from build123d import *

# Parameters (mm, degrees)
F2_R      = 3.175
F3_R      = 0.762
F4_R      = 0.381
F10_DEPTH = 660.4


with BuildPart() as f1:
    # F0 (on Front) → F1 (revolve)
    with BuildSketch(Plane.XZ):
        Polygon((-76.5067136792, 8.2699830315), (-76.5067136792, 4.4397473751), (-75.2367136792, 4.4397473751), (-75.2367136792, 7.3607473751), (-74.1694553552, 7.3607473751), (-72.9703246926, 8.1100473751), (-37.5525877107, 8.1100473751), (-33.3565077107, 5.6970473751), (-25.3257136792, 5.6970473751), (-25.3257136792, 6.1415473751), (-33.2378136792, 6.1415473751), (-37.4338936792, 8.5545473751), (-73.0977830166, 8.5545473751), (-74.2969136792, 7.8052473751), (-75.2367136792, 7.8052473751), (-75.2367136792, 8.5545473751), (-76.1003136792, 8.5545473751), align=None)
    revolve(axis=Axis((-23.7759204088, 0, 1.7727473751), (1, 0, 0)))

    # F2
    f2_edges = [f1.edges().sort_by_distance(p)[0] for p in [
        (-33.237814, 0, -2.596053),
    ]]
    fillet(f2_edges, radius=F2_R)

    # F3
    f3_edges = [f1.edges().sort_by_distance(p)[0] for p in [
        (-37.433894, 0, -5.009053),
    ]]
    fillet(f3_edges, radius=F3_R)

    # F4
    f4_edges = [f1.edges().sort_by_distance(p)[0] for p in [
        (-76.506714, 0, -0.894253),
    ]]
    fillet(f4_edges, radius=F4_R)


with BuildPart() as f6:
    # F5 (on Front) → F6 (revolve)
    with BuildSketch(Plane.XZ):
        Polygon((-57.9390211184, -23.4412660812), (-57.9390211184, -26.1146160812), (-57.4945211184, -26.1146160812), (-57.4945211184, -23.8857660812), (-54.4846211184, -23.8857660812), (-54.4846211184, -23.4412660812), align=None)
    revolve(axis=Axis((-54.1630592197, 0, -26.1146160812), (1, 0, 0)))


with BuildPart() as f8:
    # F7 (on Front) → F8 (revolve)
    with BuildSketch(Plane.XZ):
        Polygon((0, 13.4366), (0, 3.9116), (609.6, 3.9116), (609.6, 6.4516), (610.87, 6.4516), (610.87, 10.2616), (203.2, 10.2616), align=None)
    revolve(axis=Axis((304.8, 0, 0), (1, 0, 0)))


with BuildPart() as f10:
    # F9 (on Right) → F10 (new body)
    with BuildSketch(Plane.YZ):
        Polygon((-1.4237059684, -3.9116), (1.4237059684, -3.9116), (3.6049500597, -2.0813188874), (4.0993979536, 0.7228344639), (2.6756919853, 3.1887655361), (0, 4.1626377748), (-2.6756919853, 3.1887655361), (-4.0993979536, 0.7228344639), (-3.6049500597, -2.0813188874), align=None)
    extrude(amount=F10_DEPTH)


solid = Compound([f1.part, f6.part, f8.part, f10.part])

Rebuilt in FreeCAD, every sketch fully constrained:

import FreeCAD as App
import Part
import Sketcher

V = App.Vector
Q = App.Units.Quantity


def edges_at(feature, points):
    """Names of the edges that pass closest to the given points."""
    edges = feature.Shape.Edges
    near = lambda p: min(range(len(edges)), key=lambda i: edges[i].distToShape(Part.Vertex(*p))[0])
    return sorted({f"Edge{near(p) + 1}" for p in points})

doc = App.newDocument("Part")
body = doc.addObject("PartDesign::Body", "Body")

# Sketch on XZ plane
sketch1 = body.newObject("Sketcher::SketchObject", "Sketch")
sketch1.AttachmentSupport = (doc.getObject("XZ_Plane"), [""])
sketch1.MapMode = "FlatFace"
sketch1.addGeometry([
    Part.LineSegment(V(-76.51, 8.27, 0), V(-76.51, 4.44, 0)),  # 0
    Part.LineSegment(V(-76.51, 4.44, 0), V(-75.24, 4.44, 0)),  # 1
    Part.LineSegment(V(-75.24, 4.44, 0), V(-75.24, 7.36, 0)),  # 2
    Part.LineSegment(V(-75.24, 7.36, 0), V(-74.17, 7.36, 0)),  # 3
    Part.LineSegment(V(-74.17, 7.36, 0), V(-72.97, 8.11, 0)),  # 4
    Part.LineSegment(V(-72.97, 8.11, 0), V(-37.55, 8.11, 0)),  # 5
    Part.LineSegment(V(-37.55, 8.11, 0), V(-33.36, 5.7, 0)),  # 6
    Part.LineSegment(V(-33.36, 5.7, 0), V(-25.33, 5.7, 0)),  # 7
    Part.LineSegment(V(-25.33, 5.7, 0), V(-25.33, 6.14, 0)),  # 8
    Part.LineSegment(V(-25.33, 6.14, 0), V(-33.24, 6.14, 0)),  # 9
    Part.LineSegment(V(-33.24, 6.14, 0), V(-37.43, 8.55, 0)),  # 10
    Part.LineSegment(V(-37.43, 8.55, 0), V(-73.1, 8.55, 0)),  # 11
    Part.LineSegment(V(-73.1, 8.55, 0), V(-74.3, 7.81, 0)),  # 12
    Part.LineSegment(V(-74.3, 7.81, 0), V(-75.24, 7.81, 0)),  # 13
    Part.LineSegment(V(-75.24, 7.81, 0), V(-75.24, 8.55, 0)),  # 14
    Part.LineSegment(V(-75.24, 8.55, 0), V(-76.1, 8.55, 0)),  # 15
    Part.LineSegment(V(-76.1, 8.55, 0), V(-76.51, 8.27, 0)),  # 16
], False)
sketch1.addGeometry(Part.LineSegment(V(-76.51, 1.77, 0), V(-25.33, 1.77, 0)), True)  # axis
sketch1.addConstraint([
    Sketcher.Constraint("Coincident", 0, 2, 1, 1),
    Sketcher.Constraint("Coincident", 1, 2, 2, 1),
    Sketcher.Constraint("Coincident", 2, 2, 3, 1),
    Sketcher.Constraint("Coincident", 3, 2, 4, 1),
    Sketcher.Constraint("Coincident", 4, 2, 5, 1),
    Sketcher.Constraint("Coincident", 5, 2, 6, 1),
    Sketcher.Constraint("Coincident", 6, 2, 7, 1),
    Sketcher.Constraint("Coincident", 7, 2, 8, 1),
    Sketcher.Constraint("Coincident", 8, 2, 9, 1),
    Sketcher.Constraint("Coincident", 9, 2, 10, 1),
    Sketcher.Constraint("Coincident", 10, 2, 11, 1),
    Sketcher.Constraint("Coincident", 11, 2, 12, 1),
    Sketcher.Constraint("Coincident", 12, 2, 13, 1),
    Sketcher.Constraint("Coincident", 13, 2, 14, 1),
    Sketcher.Constraint("Coincident", 14, 2, 15, 1),
    Sketcher.Constraint("Coincident", 15, 2, 16, 1),
    Sketcher.Constraint("Coincident", 16, 2, 0, 1),
    Sketcher.Constraint("Vertical", 0),
    Sketcher.Constraint("Horizontal", 1),
    Sketcher.Constraint("Vertical", 2),
    Sketcher.Constraint("Horizontal", 3),
    Sketcher.Constraint("Horizontal", 5),
    Sketcher.Constraint("Horizontal", 7),
    Sketcher.Constraint("Vertical", 8),
    Sketcher.Constraint("Horizontal", 9),
    Sketcher.Constraint("Horizontal", 11),
    Sketcher.Constraint("Horizontal", 13),
    Sketcher.Constraint("Vertical", 14),
    Sketcher.Constraint("Horizontal", 15),
    Sketcher.Constraint("Horizontal", 17),
    Sketcher.Constraint("Parallel", 6, 10),
    Sketcher.Constraint("Parallel", 4, 12),
    Sketcher.Constraint("Horizontal", 11, 2, 14, 2),
    Sketcher.Constraint("Vertical", 2, 2, 13, 2),
    Sketcher.Constraint("Vertical", 16, 2, 17, 1),
    Sketcher.Constraint("Vertical", 8, 2, 17, 2),
    Sketcher.Constraint("Equal", 6, 10),
    Sketcher.Constraint("Equal", 4, 12),
    Sketcher.Constraint("Angle", 4, Q("32 deg")),
    Sketcher.Constraint("Angle", 16, Q("-145 deg")),
    Sketcher.Constraint("DistanceX", 1, 1, 1, 2, Q("0.05 in")),
    Sketcher.Constraint("DistanceX", 13, 2, 13, 1, Q("0.037 in")),
    Sketcher.Constraint("DistanceX", 15, 2, 15, 1, Q("0.034 in")),
    Sketcher.Constraint("DistanceX", 17, 1, 17, 2, Q("2.015 in")),
    Sketcher.Constraint("DistanceY", 2, 1, 2, 2, Q("0.115 in")),
    Sketcher.Constraint("DistanceY", 17, 1, 2, 2, Q("0.22 in")),
    Sketcher.Constraint("DistanceX", 9, 2, 9, 1, Q("0.3115 in")),
    Sketcher.Constraint("DistanceY", 8, 1, 8, 2, Q("0.0175 in")),
    Sketcher.Constraint("DistanceY", 14, 1, 14, 2, Q("0.0295 in")),
    Sketcher.Constraint("DistanceY", 6, 2, 5, 2, Q("0.095 in")),
    Sketcher.Constraint("DistanceX", 5, 2, 6, 2, Q("0.1652 in")),
    Sketcher.Constraint("DistanceX", 3, 1, 3, 2, Q("1.067258 mm")),
    Sketcher.Constraint("DistanceX", 5, 1, 5, 2, Q("35.417737 mm")),
    Sketcher.Constraint("DistanceX", 0, 2, -1, 1, Q("76.506714 mm")),
    Sketcher.Constraint("DistanceY", -1, 1, 0, 2, Q("4.439747 mm")),
])
revolution = body.newObject("PartDesign::Revolution", "Revolution")
revolution.Profile = sketch1
revolution.ReferenceAxis = (sketch1, ["Axis0"])
revolution.Angle = 360
doc.recompute()

fillet = body.newObject("PartDesign::Fillet", "Fillet")
fillet.Base = (revolution, edges_at(revolution, [(-33.238, 0, -2.596)]))
fillet.Radius = Q("0.125 in")
doc.recompute()

fillet2 = body.newObject("PartDesign::Fillet", "Fillet001")
fillet2.Base = (fillet, edges_at(fillet, [(-37.434, 0, -5.009)]))
fillet2.Radius = Q("0.03 in")
doc.recompute()

fillet3 = body.newObject("PartDesign::Fillet", "Fillet002")
fillet3.Base = (fillet2, edges_at(fillet2, [(-76.507, 0, -0.894)]))
fillet3.Radius = Q("0.015 in")
body2 = doc.addObject("PartDesign::Body", "Body001")

# Sketch on XZ plane
sketch2 = body2.newObject("Sketcher::SketchObject", "Sketch001")
sketch2.AttachmentSupport = (doc.getObject("XZ_Plane001"), [""])
sketch2.MapMode = "FlatFace"
sketch2.addGeometry([
    Part.LineSegment(V(-57.94, -23.44, 0), V(-57.94, -26.11, 0)),  # 0
    Part.LineSegment(V(-57.94, -26.11, 0), V(-57.49, -26.11, 0)),  # 1
    Part.LineSegment(V(-57.49, -26.11, 0), V(-57.49, -23.89, 0)),  # 2
    Part.LineSegment(V(-57.49, -23.89, 0), V(-54.48, -23.89, 0)),  # 3
    Part.LineSegment(V(-54.48, -23.89, 0), V(-54.48, -23.44, 0)),  # 4
    Part.LineSegment(V(-54.48, -23.44, 0), V(-57.94, -23.44, 0)),  # 5
], False)
sketch2.addGeometry(Part.LineSegment(V(-57.94, -26.11, 0), V(-54.48, -26.11, 0)), True)  # axis
sketch2.addConstraint([
    Sketcher.Constraint("Coincident", 0, 2, 1, 1),
    Sketcher.Constraint("Coincident", 1, 2, 2, 1),
    Sketcher.Constraint("Coincident", 2, 2, 3, 1),
    Sketcher.Constraint("Coincident", 3, 2, 4, 1),
    Sketcher.Constraint("Coincident", 4, 2, 5, 1),
    Sketcher.Constraint("Coincident", 5, 2, 0, 1),
    Sketcher.Constraint("Vertical", 0),
    Sketcher.Constraint("Horizontal", 1),
    Sketcher.Constraint("Vertical", 2),
    Sketcher.Constraint("Horizontal", 3),
    Sketcher.Constraint("Vertical", 4),
    Sketcher.Constraint("Horizontal", 5),
    Sketcher.Constraint("Horizontal", 6),
    Sketcher.Constraint("Coincident", 6, 1, 0, 2),
    Sketcher.Constraint("Vertical", 4, 2, 6, 2),
    Sketcher.Constraint("Equal", 1, 4),
    Sketcher.Constraint("DistanceX", 5, 2, 5, 1, Q("0.136 in")),
    Sketcher.Constraint("DistanceX", 1, 1, 1, 2, Q("0.0175 in")),
    Sketcher.Constraint("DistanceY", 0, 2, 0, 1, Q("2.67335 mm")),
    Sketcher.Constraint("DistanceX", 0, 2, -1, 1, Q("57.939021 mm")),
    Sketcher.Constraint("DistanceY", 0, 2, -1, 1, Q("26.114616 mm")),
])
revolution2 = body2.newObject("PartDesign::Revolution", "Revolution001")
revolution2.Profile = sketch2
revolution2.ReferenceAxis = (sketch2, ["Axis0"])
revolution2.Angle = 360
body3 = doc.addObject("PartDesign::Body", "Body002")

# Sketch on XZ plane
sketch3 = body3.newObject("Sketcher::SketchObject", "Sketch002")
sketch3.AttachmentSupport = (doc.getObject("XZ_Plane002"), [""])
sketch3.MapMode = "FlatFace"
sketch3.addGeometry([
    Part.LineSegment(V(0, 13.4, 0), V(0, 3.9, 0)),  # 0
    Part.LineSegment(V(0, 3.9, 0), V(609.6, 3.9, 0)),  # 1
    Part.LineSegment(V(609.6, 3.9, 0), V(609.6, 6.5, 0)),  # 2
    Part.LineSegment(V(609.6, 6.5, 0), V(610.9, 6.5, 0)),  # 3
    Part.LineSegment(V(610.9, 6.5, 0), V(610.9, 10.3, 0)),  # 4
    Part.LineSegment(V(610.9, 10.3, 0), V(203.2, 10.3, 0)),  # 5
    Part.LineSegment(V(203.2, 10.3, 0), V(0, 13.4, 0)),  # 6
], False)
sketch3.addConstraint([
    Sketcher.Constraint("Coincident", 0, 2, 1, 1),
    Sketcher.Constraint("Coincident", 1, 2, 2, 1),
    Sketcher.Constraint("Coincident", 2, 2, 3, 1),
    Sketcher.Constraint("Coincident", 3, 2, 4, 1),
    Sketcher.Constraint("Coincident", 4, 2, 5, 1),
    Sketcher.Constraint("Coincident", 5, 2, 6, 1),
    Sketcher.Constraint("Coincident", 6, 2, 0, 1),
    Sketcher.Constraint("Vertical", 0),
    Sketcher.Constraint("Horizontal", 1),
    Sketcher.Constraint("Vertical", 2),
    Sketcher.Constraint("Horizontal", 3),
    Sketcher.Constraint("Vertical", 4),
    Sketcher.Constraint("Horizontal", 5),
    Sketcher.Constraint("PointOnObject", 0, 2, -2),
    Sketcher.Constraint("DistanceX", 1, 1, 1, 2, Q("24 in")),
    Sketcher.Constraint("DistanceY", 2, 1, 2, 2, Q("0.1 in")),
    Sketcher.Constraint("DistanceX", -1, 1, 5, 2, Q("8 in")),
    Sketcher.Constraint("DistanceX", 3, 1, 3, 2, Q("0.05 in")),
    Sketcher.Constraint("DistanceY", 4, 1, 4, 2, Q("0.15 in")),
    Sketcher.Constraint("DistanceY", 0, 2, 0, 1, Q("0.375 in")),
    Sketcher.Constraint("DistanceY", -1, 1, 0, 2, Q("0.154 in")),
])
revolution3 = body3.newObject("PartDesign::Revolution", "Revolution002")
revolution3.Profile = sketch3
revolution3.ReferenceAxis = (sketch3, ["H_Axis"])
revolution3.Angle = 360
body4 = doc.addObject("PartDesign::Body", "Body003")

# Sketch on YZ plane
sketch4 = body4.newObject("Sketcher::SketchObject", "Sketch003")
sketch4.AttachmentSupport = (doc.getObject("YZ_Plane003"), [""])
sketch4.MapMode = "FlatFace"
sketch4.addGeometry([
    Part.LineSegment(V(-1.4, -3.9, 0), V(1.4, -3.9, 0)),  # 0
    Part.LineSegment(V(1.4, -3.9, 0), V(3.6, -2.1, 0)),  # 1
    Part.LineSegment(V(3.6, -2.1, 0), V(4.1, 0.7, 0)),  # 2
    Part.LineSegment(V(4.1, 0.7, 0), V(2.7, 3.2, 0)),  # 3
    Part.LineSegment(V(2.7, 3.2, 0), V(0, 4.2, 0)),  # 4
    Part.LineSegment(V(0, 4.2, 0), V(-2.7, 3.2, 0)),  # 5
    Part.LineSegment(V(-2.7, 3.2, 0), V(-4.1, 0.7, 0)),  # 6
    Part.LineSegment(V(-4.1, 0.7, 0), V(-3.6, -2.1, 0)),  # 7
    Part.LineSegment(V(-3.6, -2.1, 0), V(-1.4, -3.9, 0)),  # 8
], False)
sketch4.addConstraint([
    Sketcher.Constraint("Coincident", 0, 2, 1, 1),
    Sketcher.Constraint("Coincident", 1, 2, 2, 1),
    Sketcher.Constraint("Coincident", 2, 2, 3, 1),
    Sketcher.Constraint("Coincident", 3, 2, 4, 1),
    Sketcher.Constraint("Coincident", 4, 2, 5, 1),
    Sketcher.Constraint("Coincident", 5, 2, 6, 1),
    Sketcher.Constraint("Coincident", 6, 2, 7, 1),
    Sketcher.Constraint("Coincident", 7, 2, 8, 1),
    Sketcher.Constraint("Coincident", 8, 2, 0, 1),
    Sketcher.Constraint("Horizontal", 0),
    Sketcher.Constraint("Symmetric", 3, 2, 5, 2, -2),
    Sketcher.Constraint("Symmetric", 2, 2, 6, 2, -2),
    Sketcher.Constraint("Symmetric", 1, 2, 7, 2, -2),
    Sketcher.Constraint("PointOnObject", 4, 2, -2),
    Sketcher.Constraint("Equal", 1, 2),
    Sketcher.Constraint("Equal", 2, 3),
    Sketcher.Constraint("Equal", 3, 4),
    Sketcher.Constraint("Equal", 7, 8),
    Sketcher.Constraint("Angle", 1, Q("40 deg")),
    Sketcher.Constraint("Angle", 2, Q("80 deg")),
    Sketcher.Constraint("Angle", 3, Q("120 deg")),
    Sketcher.Constraint("Angle", 4, Q("160 deg")),
    Sketcher.Constraint("DistanceY", 0, 2, -1, 1, Q("0.154 in")),
    Sketcher.Constraint("DistanceX", 0, 1, 0, 2, Q("2.847412 mm")),
])
pad1 = body4.newObject("PartDesign::Pad", "Pad")
pad1.Profile = sketch4
pad1.Length = Q("26 in")

doc.recompute()
